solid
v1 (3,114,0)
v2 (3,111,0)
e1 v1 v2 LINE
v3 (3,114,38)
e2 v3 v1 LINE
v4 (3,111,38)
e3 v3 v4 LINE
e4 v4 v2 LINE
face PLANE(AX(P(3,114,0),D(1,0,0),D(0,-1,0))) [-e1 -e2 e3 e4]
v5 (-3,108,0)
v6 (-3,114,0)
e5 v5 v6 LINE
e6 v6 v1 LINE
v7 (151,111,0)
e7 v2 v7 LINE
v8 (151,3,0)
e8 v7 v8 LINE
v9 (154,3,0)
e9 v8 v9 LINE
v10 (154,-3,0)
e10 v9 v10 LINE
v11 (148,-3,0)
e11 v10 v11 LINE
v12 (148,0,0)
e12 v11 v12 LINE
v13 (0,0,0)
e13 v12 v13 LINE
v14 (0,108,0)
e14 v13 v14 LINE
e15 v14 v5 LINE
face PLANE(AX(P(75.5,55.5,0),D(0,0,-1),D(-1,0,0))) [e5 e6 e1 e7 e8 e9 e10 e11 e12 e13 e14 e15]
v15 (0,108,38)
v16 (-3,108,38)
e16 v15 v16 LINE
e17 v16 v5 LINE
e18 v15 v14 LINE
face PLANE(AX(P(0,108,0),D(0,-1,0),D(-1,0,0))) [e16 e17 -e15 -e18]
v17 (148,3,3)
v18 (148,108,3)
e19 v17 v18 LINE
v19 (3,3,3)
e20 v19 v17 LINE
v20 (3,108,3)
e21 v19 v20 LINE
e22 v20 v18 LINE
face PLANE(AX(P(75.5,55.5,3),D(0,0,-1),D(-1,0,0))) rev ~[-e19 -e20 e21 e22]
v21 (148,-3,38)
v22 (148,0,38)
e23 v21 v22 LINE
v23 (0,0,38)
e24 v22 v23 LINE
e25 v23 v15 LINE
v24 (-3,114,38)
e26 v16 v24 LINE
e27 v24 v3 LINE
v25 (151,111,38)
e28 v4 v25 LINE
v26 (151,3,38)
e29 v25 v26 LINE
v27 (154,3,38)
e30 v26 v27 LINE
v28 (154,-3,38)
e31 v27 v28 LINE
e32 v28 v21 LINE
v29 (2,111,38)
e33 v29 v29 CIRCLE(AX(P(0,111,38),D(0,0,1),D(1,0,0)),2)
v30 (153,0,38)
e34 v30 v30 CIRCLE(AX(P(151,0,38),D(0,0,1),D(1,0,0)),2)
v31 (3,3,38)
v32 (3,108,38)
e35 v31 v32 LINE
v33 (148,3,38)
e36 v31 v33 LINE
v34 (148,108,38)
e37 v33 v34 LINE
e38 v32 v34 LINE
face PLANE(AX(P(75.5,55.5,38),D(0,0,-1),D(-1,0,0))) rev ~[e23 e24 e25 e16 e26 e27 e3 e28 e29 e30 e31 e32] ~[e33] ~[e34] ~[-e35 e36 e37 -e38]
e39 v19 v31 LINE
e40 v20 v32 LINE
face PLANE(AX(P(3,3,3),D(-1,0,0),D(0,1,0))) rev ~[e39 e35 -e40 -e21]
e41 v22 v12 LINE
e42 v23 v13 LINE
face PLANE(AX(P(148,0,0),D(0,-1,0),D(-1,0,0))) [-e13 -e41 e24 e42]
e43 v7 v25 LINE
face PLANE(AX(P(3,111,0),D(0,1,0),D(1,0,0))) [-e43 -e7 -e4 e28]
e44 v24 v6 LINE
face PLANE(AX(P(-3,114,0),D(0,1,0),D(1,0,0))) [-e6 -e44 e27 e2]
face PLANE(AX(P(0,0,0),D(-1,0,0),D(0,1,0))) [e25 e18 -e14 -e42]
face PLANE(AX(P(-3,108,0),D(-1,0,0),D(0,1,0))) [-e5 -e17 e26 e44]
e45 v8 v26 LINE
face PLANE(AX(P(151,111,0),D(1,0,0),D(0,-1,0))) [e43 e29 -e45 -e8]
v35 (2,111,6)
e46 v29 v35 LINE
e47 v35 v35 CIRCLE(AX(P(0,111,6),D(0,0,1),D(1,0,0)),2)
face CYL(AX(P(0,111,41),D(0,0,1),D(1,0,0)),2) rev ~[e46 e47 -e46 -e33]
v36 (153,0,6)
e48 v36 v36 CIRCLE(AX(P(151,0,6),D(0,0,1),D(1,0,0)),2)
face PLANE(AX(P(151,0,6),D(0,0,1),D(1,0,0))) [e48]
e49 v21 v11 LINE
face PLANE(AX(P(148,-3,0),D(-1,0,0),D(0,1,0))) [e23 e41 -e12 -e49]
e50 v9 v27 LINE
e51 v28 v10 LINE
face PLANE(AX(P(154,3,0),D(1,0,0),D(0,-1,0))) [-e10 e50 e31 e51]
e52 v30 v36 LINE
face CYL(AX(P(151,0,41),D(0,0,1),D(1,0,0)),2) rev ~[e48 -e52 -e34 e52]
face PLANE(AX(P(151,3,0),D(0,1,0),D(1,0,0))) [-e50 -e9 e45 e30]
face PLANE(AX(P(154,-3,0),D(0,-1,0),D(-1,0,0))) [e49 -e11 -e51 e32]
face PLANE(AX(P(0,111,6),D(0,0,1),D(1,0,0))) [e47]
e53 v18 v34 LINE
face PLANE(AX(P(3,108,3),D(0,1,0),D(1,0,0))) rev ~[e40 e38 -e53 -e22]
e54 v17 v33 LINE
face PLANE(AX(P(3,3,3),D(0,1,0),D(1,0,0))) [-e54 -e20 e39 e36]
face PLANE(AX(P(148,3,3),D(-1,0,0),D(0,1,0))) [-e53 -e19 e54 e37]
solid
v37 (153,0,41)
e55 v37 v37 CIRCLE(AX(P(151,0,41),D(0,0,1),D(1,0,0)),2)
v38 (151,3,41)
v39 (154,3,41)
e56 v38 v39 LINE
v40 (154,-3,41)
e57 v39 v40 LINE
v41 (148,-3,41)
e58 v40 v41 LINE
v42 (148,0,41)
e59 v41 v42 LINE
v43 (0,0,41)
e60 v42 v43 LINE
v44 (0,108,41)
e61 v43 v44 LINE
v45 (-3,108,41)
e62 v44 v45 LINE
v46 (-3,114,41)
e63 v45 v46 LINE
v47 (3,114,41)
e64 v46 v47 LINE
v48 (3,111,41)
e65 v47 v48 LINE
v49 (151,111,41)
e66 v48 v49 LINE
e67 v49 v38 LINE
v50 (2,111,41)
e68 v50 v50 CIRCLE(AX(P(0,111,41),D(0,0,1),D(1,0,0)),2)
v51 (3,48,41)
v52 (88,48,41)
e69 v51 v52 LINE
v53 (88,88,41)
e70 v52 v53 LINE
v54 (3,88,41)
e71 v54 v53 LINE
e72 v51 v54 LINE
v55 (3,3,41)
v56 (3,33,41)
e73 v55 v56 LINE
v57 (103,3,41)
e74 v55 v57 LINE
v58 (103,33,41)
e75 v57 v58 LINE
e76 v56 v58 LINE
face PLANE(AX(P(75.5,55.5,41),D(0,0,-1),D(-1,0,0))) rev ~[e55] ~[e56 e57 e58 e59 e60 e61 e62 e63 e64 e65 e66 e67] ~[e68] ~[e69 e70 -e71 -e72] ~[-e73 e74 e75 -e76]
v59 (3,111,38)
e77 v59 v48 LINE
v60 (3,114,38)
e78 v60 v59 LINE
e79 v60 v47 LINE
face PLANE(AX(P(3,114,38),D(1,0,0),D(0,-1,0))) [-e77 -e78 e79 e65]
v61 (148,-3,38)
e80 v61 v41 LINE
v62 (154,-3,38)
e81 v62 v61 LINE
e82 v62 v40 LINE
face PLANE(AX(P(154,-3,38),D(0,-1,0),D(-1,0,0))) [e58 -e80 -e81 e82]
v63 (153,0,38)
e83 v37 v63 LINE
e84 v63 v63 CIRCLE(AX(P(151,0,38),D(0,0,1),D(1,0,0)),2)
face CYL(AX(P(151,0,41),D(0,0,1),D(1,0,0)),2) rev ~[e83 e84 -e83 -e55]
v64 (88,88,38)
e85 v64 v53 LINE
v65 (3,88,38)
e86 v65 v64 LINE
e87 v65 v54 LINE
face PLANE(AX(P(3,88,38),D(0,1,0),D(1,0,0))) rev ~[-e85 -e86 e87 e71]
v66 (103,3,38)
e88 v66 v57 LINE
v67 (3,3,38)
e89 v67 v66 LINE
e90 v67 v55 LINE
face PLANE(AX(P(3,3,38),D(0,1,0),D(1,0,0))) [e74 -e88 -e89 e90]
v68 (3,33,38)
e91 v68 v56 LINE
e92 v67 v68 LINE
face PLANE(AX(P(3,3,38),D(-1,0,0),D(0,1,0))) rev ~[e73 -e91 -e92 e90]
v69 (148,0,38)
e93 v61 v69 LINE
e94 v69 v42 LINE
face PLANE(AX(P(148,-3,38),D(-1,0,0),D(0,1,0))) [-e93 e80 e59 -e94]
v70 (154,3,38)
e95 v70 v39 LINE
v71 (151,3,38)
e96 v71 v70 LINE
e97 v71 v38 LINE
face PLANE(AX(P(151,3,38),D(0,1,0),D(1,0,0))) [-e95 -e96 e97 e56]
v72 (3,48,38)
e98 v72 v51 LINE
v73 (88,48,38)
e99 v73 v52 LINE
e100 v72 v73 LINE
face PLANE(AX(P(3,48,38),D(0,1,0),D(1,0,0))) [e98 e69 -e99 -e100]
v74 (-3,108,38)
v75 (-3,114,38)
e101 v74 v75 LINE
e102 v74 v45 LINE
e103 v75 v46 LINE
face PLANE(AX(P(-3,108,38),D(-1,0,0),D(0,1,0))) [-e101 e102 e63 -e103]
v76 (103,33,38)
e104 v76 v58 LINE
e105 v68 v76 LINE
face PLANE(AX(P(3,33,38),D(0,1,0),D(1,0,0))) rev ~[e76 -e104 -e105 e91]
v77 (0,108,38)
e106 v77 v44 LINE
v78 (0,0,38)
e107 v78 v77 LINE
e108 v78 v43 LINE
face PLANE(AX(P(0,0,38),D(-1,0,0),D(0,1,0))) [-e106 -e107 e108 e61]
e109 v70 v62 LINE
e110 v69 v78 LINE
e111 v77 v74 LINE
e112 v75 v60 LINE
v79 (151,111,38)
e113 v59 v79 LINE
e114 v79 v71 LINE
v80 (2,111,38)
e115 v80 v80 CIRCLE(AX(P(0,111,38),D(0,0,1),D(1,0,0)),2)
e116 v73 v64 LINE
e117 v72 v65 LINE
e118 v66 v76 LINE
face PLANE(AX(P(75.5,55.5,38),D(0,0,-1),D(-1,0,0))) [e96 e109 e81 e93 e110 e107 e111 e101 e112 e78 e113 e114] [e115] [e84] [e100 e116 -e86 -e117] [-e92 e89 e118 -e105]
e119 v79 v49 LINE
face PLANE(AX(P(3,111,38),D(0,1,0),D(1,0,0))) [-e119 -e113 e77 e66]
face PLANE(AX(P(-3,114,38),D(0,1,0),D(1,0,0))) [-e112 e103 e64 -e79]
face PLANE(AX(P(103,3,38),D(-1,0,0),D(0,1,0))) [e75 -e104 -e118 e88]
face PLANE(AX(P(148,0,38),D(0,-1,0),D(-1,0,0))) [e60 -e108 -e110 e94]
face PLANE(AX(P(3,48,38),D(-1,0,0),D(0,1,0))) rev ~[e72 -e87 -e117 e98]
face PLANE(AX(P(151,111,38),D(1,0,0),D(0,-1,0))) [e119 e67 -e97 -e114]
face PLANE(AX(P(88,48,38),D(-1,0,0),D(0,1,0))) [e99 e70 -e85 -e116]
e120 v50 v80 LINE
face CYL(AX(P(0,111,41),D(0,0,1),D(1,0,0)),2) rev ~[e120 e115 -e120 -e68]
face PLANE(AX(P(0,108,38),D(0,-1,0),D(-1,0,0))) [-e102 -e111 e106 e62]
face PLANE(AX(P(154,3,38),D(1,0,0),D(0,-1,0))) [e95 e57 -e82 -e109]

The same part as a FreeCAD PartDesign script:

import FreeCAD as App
import Part
import Sketcher

doc = App.newDocument("Part")
body = doc.addObject("PartDesign::Body", "Body")
body.AllowCompound = True

# Sketch on XY plane
sketch1 = doc.addObject("Sketcher::SketchObject", "Sketch")
body.addObject(sketch1)
sketch1.AttachmentSupport = (doc.XY_Plane, [""])
sketch1.MapMode = "FlatFace"
sketch1.AttachmentOffset = App.Placement(App.Vector(0, 0, 41), App.Rotation())
sketch1.addGeometry([
    Part.Circle(App.Vector(151, 0, 0), App.Vector(0, 0, 1), 2),
    Part.Circle(App.Vector(0, 111, 0), App.Vector(0, 0, 1), 2),
], False)
sketch1.addConstraint([
    Sketcher.Constraint("Equal", 0, 1),
    Sketcher.Constraint("PointOnObject", 0, 3, -1),
    Sketcher.Constraint("PointOnObject", 1, 3, -2),
    Sketcher.Constraint("Diameter", 0, 4.0),
    Sketcher.Constraint("DistanceX", -1, 1, 0, 3, 151.0),
    Sketcher.Constraint("DistanceY", -1, 1, 1, 3, 111.0),
])
pad1 = doc.addObject("PartDesign::Pad", "Pad")
body.addObject(pad1)
pad1.Profile = sketch1
pad1.Length = 35
pad1.Reversed = True
body2 = doc.addObject("PartDesign::Body", "Body001")

# Sketch on XY plane
sketch2 = doc.addObject("Sketcher::SketchObject", "Sketch001")
body2.addObject(sketch2)
sketch2.AttachmentSupport = (doc.getObject("XY_Plane001"), [""])
sketch2.MapMode = "FlatFace"
sketch2.AttachmentOffset = App.Placement(App.Vector(0, 0, 38), App.Rotation())
sketch2.addGeometry([
    Part.LineSegment(App.Vector(154, -3, 0), App.Vector(154, 3, 0)),  # 0
    Part.LineSegment(App.Vector(154, 3, 0), App.Vector(151, 3, 0)),  # 1
    Part.LineSegment(App.Vector(151, 3, 0), App.Vector(151, 111, 0)),  # 2
    Part.LineSegment(App.Vector(151, 111, 0), App.Vector(3, 111, 0)),  # 3
    Part.LineSegment(App.Vector(3, 111, 0), App.Vector(3, 114, 0)),  # 4
    Part.LineSegment(App.Vector(3, 114, 0), App.Vector(-3, 114, 0)),  # 5
    Part.LineSegment(App.Vector(-3, 114, 0), App.Vector(-3, 108, 0)),  # 6
    Part.LineSegment(App.Vector(-3, 108, 0), App.Vector(0, 108, 0)),  # 7
    Part.LineSegment(App.Vector(0, 108, 0), App.Vector(0, 0, 0)),  # 8
    Part.LineSegment(App.Vector(0, 0, 0), App.Vector(148, 0, 0)),  # 9
    Part.LineSegment(App.Vector(148, 0, 0), App.Vector(148, -3, 0)),  # 10
    Part.LineSegment(App.Vector(148, -3, 0), App.Vector(154, -3, 0)),  # 11
    Part.LineSegment(App.Vector(3, 3, 0), App.Vector(3, 33, 0)),  # 12
    Part.LineSegment(App.Vector(3, 33, 0), App.Vector(103, 33, 0)),  # 13
    Part.LineSegment(App.Vector(103, 33, 0), App.Vector(103, 3, 0)),  # 14
    Part.LineSegment(App.Vector(103, 3, 0), App.Vector(3, 3, 0)),  # 15
    Part.LineSegment(App.Vector(3, 48, 0), App.Vector(3, 88, 0)),  # 16
    Part.LineSegment(App.Vector(3, 88, 0), App.Vector(88, 88, 0)),  # 17
    Part.LineSegment(App.Vector(88, 88, 0), App.Vector(88, 48, 0)),  # 18
    Part.LineSegment(App.Vector(88, 48, 0), App.Vector(3, 48, 0)),  # 19
], False)
sketch2.addConstraint([
    Sketcher.Constraint("Coincident", 0, 2, 1, 1),
    Sketcher.Constraint("Coincident", 1, 2, 2, 1),
    Sketcher.Constraint("Coincident", 2, 2, 3, 1),
    Sketcher.Constraint("Coincident", 3, 2, 4, 1),
    Sketcher.Constraint("Coincident", 4, 2, 5, 1),
    Sketcher.Constraint("Coincident", 5, 2, 6, 1),
    Sketcher.Constraint("Coincident", 6, 2, 7, 1),
    Sketcher.Constraint("Coincident", 7, 2, 8, 1),
    Sketcher.Constraint("Coincident", 8, 2, 9, 1),
    Sketcher.Constraint("Coincident", 9, 2, 10, 1),
    Sketcher.Constraint("Coincident", 10, 2, 11, 1),
    Sketcher.Constraint("Coincident", 11, 2, 0, 1),
    Sketcher.Constraint("Coincident", 12, 2, 13, 1),
    Sketcher.Constraint("Coincident", 13, 2, 14, 1),
    Sketcher.Constraint("Coincident", 14, 2, 15, 1),
    Sketcher.Constraint("Coincident", 15, 2, 12, 1),
    Sketcher.Constraint("Coincident", 16, 2, 17, 1),
    Sketcher.Constraint("Coincident", 17, 2, 18, 1),
    Sketcher.Constraint("Coincident", 18, 2, 19, 1),
    Sketcher.Constraint("Coincident", 19, 2, 16, 1),
    Sketcher.Constraint("Vertical", 0),
    Sketcher.Constraint("Horizontal", 1),
    Sketcher.Constraint("Vertical", 2),
    Sketcher.Constraint("Horizontal", 3),
    Sketcher.Constraint("Vertical", 4),
    Sketcher.Constraint("Horizontal", 5),
    Sketcher.Constraint("Vertical", 6),
    Sketcher.Constraint("Horizontal", 7),
    Sketcher.Constraint("Vertical", 8),
    Sketcher.Constraint("Horizontal", 9),
    Sketcher.Constraint("Vertical", 10),
    Sketcher.Constraint("Horizontal", 11),
    Sketcher.Constraint("Vertical", 12),
    Sketcher.Constraint("Horizontal", 13),
    Sketcher.Constraint("Vertical", 14),
    Sketcher.Constraint("Horizontal", 15),
    Sketcher.Constraint("Vertical", 16),
    Sketcher.Constraint("Horizontal", 17),
    Sketcher.Constraint("Vertical", 18),
    Sketcher.Constraint("Horizontal", 19),
    Sketcher.Constraint("Coincident", 8, 2, -1, 1),
    Sketcher.Constraint("Horizontal", 1, 2, 14, 2),
    Sketcher.Constraint("Vertical", 4, 2, 12, 2),
    Sketcher.Constraint("Vertical", 15, 2, 16, 2),
    Sketcher.Constraint("Equal", 1, 7),
    Sketcher.Constraint("Equal", 3, 9),
    Sketcher.Constraint("Equal", 11, 0),
    Sketcher.Constraint("Equal", 7, 4),
    Sketcher.Constraint("Equal", 0, 6),
    Sketcher.Constraint("Equal", 2, 8),
    Sketcher.Constraint("DistanceX", 1, 2, 1, 1, 3.0),
    Sketcher.Constraint("DistanceX", 3, 2, 3, 1, 148.0),
    Sketcher.Constraint("DistanceX", 5, 2, 5, 1, 6.0),
    Sketcher.Constraint("DistanceX", 13, 1, 13, 2, 100.0),
    Sketcher.Constraint("DistanceX", 17, 1, 17, 2, 85.0),
    Sketcher.Constraint("DistanceY", 2, 1, 2, 2, 108.0),
    Sketcher.Constraint("DistanceY", 12, 1, 12, 2, 30.0),
    Sketcher.Constraint("DistanceY", 16, 1, 16, 2, 40.0),
    Sketcher.Constraint("DistanceY", -1, 1, 16, 2, 88.0),
])
pad2 = doc.addObject("PartDesign::Pad", "Pad001")
body2.addObject(pad2)
pad2.Profile = sketch2
pad2.Length = 3
doc.recompute()

boolean = doc.addObject("PartDesign::Boolean", "Boolean")
body2.addObject(boolean)
boolean.Type = "Cut"
boolean.addObjects([body])
body3 = doc.addObject("PartDesign::Body", "Body002")

# Sketch on XY plane
sketch3 = doc.addObject("Sketcher::SketchObject", "Sketch002")
body3.addObject(sketch3)
sketch3.AttachmentSupport = (doc.getObject("XY_Plane002"), [""])
sketch3.MapMode = "FlatFace"
sketch3.addGeometry([
    Part.LineSegment(App.Vector(154, -3, 0), App.Vector(154, 3, 0)),  # 0
    Part.LineSegment(App.Vector(154, 3, 0), App.Vector(151, 3, 0)),  # 1
    Part.LineSegment(App.Vector(151, 3, 0), App.Vector(151, 111, 0)),  # 2
    Part.LineSegment(App.Vector(151, 111, 0), App.Vector(3, 111, 0)),  # 3
    Part.LineSegment(App.Vector(3, 111, 0), App.Vector(3, 114, 0)),  # 4
    Part.LineSegment(App.Vector(3, 114, 0), App.Vector(-3, 114, 0)),  # 5
    Part.LineSegment(App.Vector(-3, 114, 0), App.Vector(-3, 108, 0)),  # 6
    Part.LineSegment(App.Vector(-3, 108, 0), App.Vector(0, 108, 0)),  # 7
    Part.LineSegment(App.Vector(0, 108, 0), App.Vector(0, 0, 0)),  # 8
    Part.LineSegment(App.Vector(0, 0, 0), App.Vector(148, 0, 0)),  # 9
    Part.LineSegment(App.Vector(148, 0, 0), App.Vector(148, -3, 0)),  # 10
    Part.LineSegment(App.Vector(148, -3, 0), App.Vector(154, -3, 0)),  # 11
], False)
sketch3.addConstraint([
    Sketcher.Constraint("Coincident", 0, 2, 1, 1),
    Sketcher.Constraint("Coincident", 1, 2, 2, 1),
    Sketcher.Constraint("Coincident", 2, 2, 3, 1),
    Sketcher.Constraint("Coincident", 3, 2, 4, 1),
    Sketcher.Constraint("Coincident", 4, 2, 5, 1),
    Sketcher.Constraint("Coincident", 5, 2, 6, 1),
    Sketcher.Constraint("Coincident", 6, 2, 7, 1),
    Sketcher.Constraint("Coincident", 7, 2, 8, 1),
    Sketcher.Constraint("Coincident", 8, 2, 9, 1),
    Sketcher.Constraint("Coincident", 9, 2, 10, 1),
    Sketcher.Constraint("Coincident", 10, 2, 11, 1),
    Sketcher.Constraint("Coincident", 11, 2, 0, 1),
    Sketcher.Constraint("Vertical", 0),
    Sketcher.Constraint("Horizontal", 1),
    Sketcher.Constraint("Vertical", 2),
    Sketcher.Constraint("Horizontal", 3),
    Sketcher.Constraint("Vertical", 4),
    Sketcher.Constraint("Horizontal", 5),
    Sketcher.Constraint("Vertical", 6),
    Sketcher.Constraint("Horizontal", 7),
    Sketcher.Constraint("Vertical", 8),
    Sketcher.Constraint("Horizontal", 9),
    Sketcher.Constraint("Vertical", 10),
    Sketcher.Constraint("Horizontal", 11),
    Sketcher.Constraint("Coincident", 8, 2, -1, 1),
    Sketcher.Constraint("Equal", 1, 7),
    Sketcher.Constraint("Equal", 3, 9),
    Sketcher.Constraint("Equal", 11, 0),
    Sketcher.Constraint("Equal", 7, 4),
    Sketcher.Constraint("Equal", 0, 6),
    Sketcher.Constraint("Equal", 2, 8),
    Sketcher.Constraint("DistanceX", 1, 2, 1, 1, 3.0),
    Sketcher.Constraint("DistanceX", 3, 2, 3, 1, 148.0),
    Sketcher.Constraint("DistanceX", 5, 2, 5, 1, 6.0),
    Sketcher.Constraint("DistanceY", 2, 1, 2, 2, 108.0),
])
pad3 = doc.addObject("PartDesign::Pad", "Pad002")
body3.addObject(pad3)
pad3.Profile = sketch3
pad3.Length = 3
body4 = doc.addObject("PartDesign::Body", "Body003")
body4.AllowCompound = True

# Sketch on XY plane
sketch4 = doc.addObject("Sketcher::SketchObject", "Sketch003")
body4.addObject(sketch4)
sketch4.AttachmentSupport = (doc.getObject("XY_Plane003"), [""])
sketch4.MapMode = "FlatFace"
sketch4.AttachmentOffset = App.Placement(App.Vector(0, 0, 41), App.Rotation())
sketch4.addGeometry([
    Part.Circle(App.Vector(151, 0, 0), App.Vector(0, 0, 1), 2),
    Part.Circle(App.Vector(0, 111, 0), App.Vector(0, 0, 1), 2),
], False)
sketch4.addConstraint([
    Sketcher.Constraint("Equal", 0, 1),
    Sketcher.Constraint("PointOnObject", 0, 3, -1),
    Sketcher.Constraint("PointOnObject", 1, 3, -2),
    Sketcher.Constraint("Diameter", 0, 4.0),
    Sketcher.Constraint("DistanceX", -1, 1, 0, 3, 151.0),
    Sketcher.Constraint("DistanceY", -1, 1, 1, 3, 111.0),
])
pad4 = doc.addObject("PartDesign::Pad", "Pad003")
body4.addObject(pad4)
pad4.Profile = sketch4
pad4.Length = 35
pad4.Reversed = True
body5 = doc.addObject("PartDesign::Body", "Body004")

# Sketch on XY plane
sketch5 = doc.addObject("Sketcher::SketchObject", "Sketch004")
body5.addObject(sketch5)
sketch5.AttachmentSupport = (doc.getObject("XY_Plane004"), [""])
sketch5.MapMode = "FlatFace"
sketch5.AttachmentOffset = App.Placement(App.Vector(0, 0, 3), App.Rotation())
sketch5.addGeometry([
    Part.LineSegment(App.Vector(154, -3, 0), App.Vector(154, 3, 0)),  # 0
    Part.LineSegment(App.Vector(154, 3, 0), App.Vector(151, 3, 0)),  # 1
    Part.LineSegment(App.Vector(151, 3, 0), App.Vector(151, 111, 0)),  # 2
    Part.LineSegment(App.Vector(151, 111, 0), App.Vector(3, 111, 0)),  # 3
    Part.LineSegment(App.Vector(3, 111, 0), App.Vector(3, 114, 0)),  # 4
    Part.LineSegment(App.Vector(3, 114, 0), App.Vector(-3, 114, 0)),  # 5
    Part.LineSegment(App.Vector(-3, 114, 0), App.Vector(-3, 108, 0)),  # 6
    Part.LineSegment(App.Vector(-3, 108, 0), App.Vector(0, 108, 0)),  # 7
    Part.LineSegment(App.Vector(0, 108, 0), App.Vector(0, 0, 0)),  # 8
    Part.LineSegment(App.Vector(0, 0, 0), App.Vector(148, 0, 0)),  # 9
    Part.LineSegment(App.Vector(148, 0, 0), App.Vector(148, -3, 0)),  # 10
    Part.LineSegment(App.Vector(148, -3, 0), App.Vector(154, -3, 0)),  # 11
    Part.LineSegment(App.Vector(3, 3, 0), App.Vector(3, 108, 0)),  # 12
    Part.LineSegment(App.Vector(3, 108, 0), App.Vector(148, 108, 0)),  # 13
    Part.LineSegment(App.Vector(148, 108, 0), App.Vector(148, 3, 0)),  # 14
    Part.LineSegment(App.Vector(148, 3, 0), App.Vector(3, 3, 0)),  # 15
], False)
sketch5.addConstraint([
    Sketcher.Constraint("Coincident", 0, 2, 1, 1),
    Sketcher.Constraint("Coincident", 1, 2, 2, 1),
    Sketcher.Constraint("Coincident", 2, 2, 3, 1),
    Sketcher.Constraint("Coincident", 3, 2, 4, 1),
    Sketcher.Constraint("Coincident", 4, 2, 5, 1),
    Sketcher.Constraint("Coincident", 5, 2, 6, 1),
    Sketcher.Constraint("Coincident", 6, 2, 7, 1),
    Sketcher.Constraint("Coincident", 7, 2, 8, 1),
    Sketcher.Constraint("Coincident", 8, 2, 9, 1),
    Sketcher.Constraint("Coincident", 9, 2, 10, 1),
    Sketcher.Constraint("Coincident", 10, 2, 11, 1),
    Sketcher.Constraint("Coincident", 11, 2, 0, 1),
    Sketcher.Constraint("Coincident", 12, 2, 13, 1),
    Sketcher.Constraint("Coincident", 13, 2, 14, 1),
    Sketcher.Constraint("Coincident", 14, 2, 15, 1),
    Sketcher.Constraint("Coincident", 15, 2, 12, 1),
    Sketcher.Constraint("Vertical", 0),
    Sketcher.Constraint("Horizontal", 1),
    Sketcher.Constraint("Vertical", 2),
    Sketcher.Constraint("Horizontal", 3),
    Sketcher.Constraint("Vertical", 4),
    Sketcher.Constraint("Horizontal", 5),
    Sketcher.Constraint("Vertical", 6),
    Sketcher.Constraint("Horizontal", 7),
    Sketcher.Constraint("Vertical", 8),
    Sketcher.Constraint("Horizontal", 9),
    Sketcher.Constraint("Vertical", 10),
    Sketcher.Constraint("Horizontal", 11),
    Sketcher.Constraint("Vertical", 12),
    Sketcher.Constraint("Horizontal", 13),
    Sketcher.Constraint("Vertical", 14),
    Sketcher.Constraint("Horizontal", 15),
    Sketcher.Constraint("Coincident", 8, 2, -1, 1),
    Sketcher.Constraint("Symmetric", 6, 2, 12, 2, -2),
    Sketcher.Constraint("Symmetric", 10, 2, 14, 2, -1),
    Sketcher.Constraint("Horizontal", 1, 2, 14, 2),
    Sketcher.Constraint("Vertical", 4, 2, 12, 2),
    Sketcher.Constraint("Equal", 1, 7),
    Sketcher.Constraint("Equal", 3, 9),
    Sketcher.Constraint("Equal", 11, 0),
    Sketcher.Constraint("Equal", 7, 4),
    Sketcher.Constraint("Equal", 0, 6),
    Sketcher.Constraint("DistanceX", 1, 2, 1, 1, 3.0),
    Sketcher.Constraint("DistanceX", 3, 2, 3, 1, 148.0),
    Sketcher.Constraint("DistanceY", 2, 1, 2, 2, 108.0),
])
pad5 = doc.addObject("PartDesign::Pad", "Pad004")
body5.addObject(pad5)
pad5.Profile = sketch5
pad5.Length = 35
doc.recompute()

boolean2 = doc.addObject("PartDesign::Boolean", "Boolean001")
body5.addObject(boolean2)
boolean2.Type = "Cut"
boolean2.addObjects([body4])
doc.recompute()

boolean3 = doc.addObject("PartDesign::Boolean", "Boolean002")
body5.addObject(boolean3)
boolean3.Type = "Fuse"
boolean3.addObjects([body3])

doc.recompute()
